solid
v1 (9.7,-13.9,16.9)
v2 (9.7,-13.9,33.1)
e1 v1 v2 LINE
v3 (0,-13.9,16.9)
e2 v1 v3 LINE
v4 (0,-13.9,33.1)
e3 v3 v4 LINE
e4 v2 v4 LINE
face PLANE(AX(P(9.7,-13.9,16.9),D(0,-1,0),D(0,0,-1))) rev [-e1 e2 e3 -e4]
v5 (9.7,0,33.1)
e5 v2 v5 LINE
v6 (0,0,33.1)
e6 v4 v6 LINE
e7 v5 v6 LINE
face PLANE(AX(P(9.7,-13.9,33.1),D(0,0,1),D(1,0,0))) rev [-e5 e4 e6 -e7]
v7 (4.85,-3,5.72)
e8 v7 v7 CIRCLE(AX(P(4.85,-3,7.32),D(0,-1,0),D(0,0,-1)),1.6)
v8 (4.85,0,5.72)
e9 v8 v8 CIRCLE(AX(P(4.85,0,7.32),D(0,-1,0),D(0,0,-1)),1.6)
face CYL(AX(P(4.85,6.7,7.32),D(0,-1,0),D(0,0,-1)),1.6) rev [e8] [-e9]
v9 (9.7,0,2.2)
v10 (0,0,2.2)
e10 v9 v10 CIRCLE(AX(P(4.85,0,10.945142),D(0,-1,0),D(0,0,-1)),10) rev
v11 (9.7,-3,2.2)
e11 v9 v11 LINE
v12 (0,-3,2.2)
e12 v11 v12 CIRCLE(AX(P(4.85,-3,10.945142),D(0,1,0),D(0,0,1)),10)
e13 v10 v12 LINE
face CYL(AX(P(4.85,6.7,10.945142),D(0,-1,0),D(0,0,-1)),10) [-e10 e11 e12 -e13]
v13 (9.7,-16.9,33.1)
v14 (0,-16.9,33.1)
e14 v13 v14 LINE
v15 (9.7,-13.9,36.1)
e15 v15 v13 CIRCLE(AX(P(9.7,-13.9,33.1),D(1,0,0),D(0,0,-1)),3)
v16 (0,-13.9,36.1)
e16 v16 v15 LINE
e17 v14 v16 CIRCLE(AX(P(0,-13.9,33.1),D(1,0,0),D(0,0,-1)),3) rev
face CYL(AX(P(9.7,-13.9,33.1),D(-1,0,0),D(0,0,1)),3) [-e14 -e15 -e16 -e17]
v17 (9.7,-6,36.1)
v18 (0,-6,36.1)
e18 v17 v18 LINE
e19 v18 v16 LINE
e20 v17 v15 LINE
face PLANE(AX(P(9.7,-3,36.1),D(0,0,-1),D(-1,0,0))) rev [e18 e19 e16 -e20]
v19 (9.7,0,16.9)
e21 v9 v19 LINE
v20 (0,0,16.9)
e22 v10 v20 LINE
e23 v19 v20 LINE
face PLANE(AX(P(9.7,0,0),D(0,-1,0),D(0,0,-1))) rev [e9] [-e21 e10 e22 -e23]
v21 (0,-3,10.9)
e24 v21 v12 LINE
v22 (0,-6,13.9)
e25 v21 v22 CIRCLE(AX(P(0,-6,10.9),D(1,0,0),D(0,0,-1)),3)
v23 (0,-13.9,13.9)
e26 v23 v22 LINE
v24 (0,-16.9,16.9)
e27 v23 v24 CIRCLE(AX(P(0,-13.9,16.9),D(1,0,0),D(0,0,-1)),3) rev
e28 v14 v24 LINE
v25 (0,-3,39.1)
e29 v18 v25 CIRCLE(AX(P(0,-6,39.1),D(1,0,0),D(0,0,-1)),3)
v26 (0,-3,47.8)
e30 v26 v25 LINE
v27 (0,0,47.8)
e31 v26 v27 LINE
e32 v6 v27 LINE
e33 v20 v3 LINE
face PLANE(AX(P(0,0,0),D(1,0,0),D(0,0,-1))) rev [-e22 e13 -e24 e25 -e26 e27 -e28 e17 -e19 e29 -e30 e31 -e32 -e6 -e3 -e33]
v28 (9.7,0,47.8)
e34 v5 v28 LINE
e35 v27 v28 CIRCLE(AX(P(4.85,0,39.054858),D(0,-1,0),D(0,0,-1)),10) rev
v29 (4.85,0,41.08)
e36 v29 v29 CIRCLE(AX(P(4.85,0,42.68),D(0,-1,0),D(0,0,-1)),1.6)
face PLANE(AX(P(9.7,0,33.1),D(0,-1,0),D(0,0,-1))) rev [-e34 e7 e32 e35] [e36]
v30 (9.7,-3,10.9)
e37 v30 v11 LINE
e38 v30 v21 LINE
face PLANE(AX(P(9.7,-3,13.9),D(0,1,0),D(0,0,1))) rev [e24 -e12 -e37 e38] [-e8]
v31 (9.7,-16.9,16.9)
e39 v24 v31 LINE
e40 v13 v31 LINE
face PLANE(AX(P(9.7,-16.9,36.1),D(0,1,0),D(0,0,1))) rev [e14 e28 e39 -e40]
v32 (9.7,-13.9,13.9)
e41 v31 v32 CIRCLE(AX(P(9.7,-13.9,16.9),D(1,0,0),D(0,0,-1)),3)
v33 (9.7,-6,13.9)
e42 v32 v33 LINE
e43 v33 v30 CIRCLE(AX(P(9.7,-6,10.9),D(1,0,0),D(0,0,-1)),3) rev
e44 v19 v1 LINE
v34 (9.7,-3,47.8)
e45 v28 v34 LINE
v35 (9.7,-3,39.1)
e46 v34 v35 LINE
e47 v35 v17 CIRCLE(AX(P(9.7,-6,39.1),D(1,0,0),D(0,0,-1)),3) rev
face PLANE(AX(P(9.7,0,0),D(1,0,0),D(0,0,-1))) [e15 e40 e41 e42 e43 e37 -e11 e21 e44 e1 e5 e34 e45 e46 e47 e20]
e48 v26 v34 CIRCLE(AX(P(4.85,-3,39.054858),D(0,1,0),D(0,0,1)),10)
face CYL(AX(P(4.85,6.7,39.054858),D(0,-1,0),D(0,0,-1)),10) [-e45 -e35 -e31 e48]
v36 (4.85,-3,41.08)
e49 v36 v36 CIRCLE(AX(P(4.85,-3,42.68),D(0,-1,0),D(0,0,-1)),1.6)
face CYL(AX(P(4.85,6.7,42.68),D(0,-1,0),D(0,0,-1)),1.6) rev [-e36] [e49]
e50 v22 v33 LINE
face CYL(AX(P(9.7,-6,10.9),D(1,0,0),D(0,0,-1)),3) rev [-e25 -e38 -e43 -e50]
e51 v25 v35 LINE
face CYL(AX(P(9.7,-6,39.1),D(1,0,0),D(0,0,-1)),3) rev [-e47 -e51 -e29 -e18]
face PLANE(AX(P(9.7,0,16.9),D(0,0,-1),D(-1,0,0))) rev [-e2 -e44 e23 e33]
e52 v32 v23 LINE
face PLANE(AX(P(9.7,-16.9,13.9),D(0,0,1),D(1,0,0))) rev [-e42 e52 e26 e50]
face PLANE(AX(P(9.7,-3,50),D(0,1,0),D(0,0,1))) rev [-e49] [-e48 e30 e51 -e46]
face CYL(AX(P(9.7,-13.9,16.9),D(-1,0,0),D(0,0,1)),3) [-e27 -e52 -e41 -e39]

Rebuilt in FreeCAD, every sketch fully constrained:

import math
import FreeCAD as App
import Part
import Sketcher
from FreeCAD import Vector
Q = App.Units.Quantity


def edges_at(feature, points):
    """Names of the edges that pass closest to the given points."""
    edges = feature.Shape.Edges
    near = lambda p: min(range(len(edges)), key=lambda i: edges[i].distToShape(Part.Vertex(*p))[0])
    return sorted({f"Edge{near(p) + 1}" for p in points})


def add_polygon(sketch, points):
    """Adds a closed chain of lines whose ends are joined by coincident constraints."""
    first, n = sketch.GeometryCount, len(points)
    for a, b in zip(points, points[1:] + points[:1]):
        sketch.addGeometry(Part.LineSegment(App.Vector(*a, 0), App.Vector(*b, 0)), False)
    for i in range(n):
        sketch.addConstraint(Sketcher.Constraint("Coincident", first + i, 2, first + (i + 1) % n, 1))

doc = App.newDocument("Part")
body = doc.addObject("PartDesign::Body", "Body")

# Sketch on YZ plane
sketch1 = doc.addObject("Sketcher::SketchObject", "Sketch")
body.addObject(sketch1)
sketch1.AttachmentSupport = (doc.YZ_Plane, [""])
sketch1.MapMode = "FlatFace"
add_polygon(sketch1, [(0, 0), (0, 16.9), (-13.9, 16.9), (-13.9, 33.1), (0, 33.1), (0, 50), (-3, 50), (-3, 36.1), (-16.9, 36.1), (-16.9, 13.9), (-3, 13.9), (-3, 0)])  # lines 0-11
sketch1.addConstraint([
    Sketcher.Constraint("Vertical", 0),
    Sketcher.Constraint("Horizontal", 1),
    Sketcher.Constraint("Vertical", 2),
    Sketcher.Constraint("Horizontal", 3),
    Sketcher.Constraint("Vertical", 4),
    Sketcher.Constraint("Horizontal", 5),
    Sketcher.Constraint("Vertical", 6),
    Sketcher.Constraint("Horizontal", 7),
    Sketcher.Constraint("Vertical", 8),
    Sketcher.Constraint("Horizontal", 9),
    Sketcher.Constraint("Vertical", 10),
    Sketcher.Constraint("Horizontal", 11),
    Sketcher.Constraint("Coincident", 11, 2, -1, 1),
    Sketcher.Constraint("PointOnObject", 3, 2, -2),
    Sketcher.Constraint("Vertical", 6, 2, 9, 2),
    Sketcher.Constraint("Equal", 3, 7),
    Sketcher.Constraint("Equal", 0, 4),
    Sketcher.Constraint("Equal", 9, 6),
    Sketcher.Constraint("Equal", 6, 10),
    Sketcher.Constraint("DistanceX", 5, 2, 5, 1, Q("3 mm")),
    Sketcher.Constraint("DistanceX", 1, 2, 1, 1, Q("13.9 mm")),
    Sketcher.Constraint("DistanceY", 0, 1, 0, 2, Q("16.9 mm")),
    Sketcher.Constraint("DistanceY", 2, 1, 2, 2, Q("16.2 mm")),
])
pad1 = doc.addObject("PartDesign::Pad", "Pad")
body.addObject(pad1)
pad1.Profile = sketch1
pad1.Length = 9.7
doc.recompute()

fillet = doc.addObject("PartDesign::Fillet", "Fillet")
body.addObject(fillet)
fillet.Base = (pad1, edges_at(pad1, [
    (4.85, -3, 13.9),
    (4.85, -16.9, 13.9),
    (4.85, -16.9, 36.1),
    (4.85, -3, 36.1),
]))
fillet.Radius = 3

# Sketch on XZ plane
sketch2 = doc.addObject("Sketcher::SketchObject", "Sketch001")
body.addObject(sketch2)
sketch2.AttachmentSupport = (doc.XZ_Plane, [""])
sketch2.MapMode = "FlatFace"
sketch2.AttachmentOffset = App.Placement(Vector(0, 0, 3), App.Rotation())
sketch2.addGeometry([
    Part.Circle(Vector(4.85, 42.68, 0), Vector(0, 0, 1), 1.6),
    Part.Circle(Vector(4.85, 7.32, 0), Vector(0, 0, 1), 1.6),
], False)
sketch2.addConstraint([
    Sketcher.Constraint("Equal", 0, 1),
    Sketcher.Constraint("Vertical", 0, 3, 1, 3),
    Sketcher.Constraint("Diameter", 0, Q("3.2 mm")),
    Sketcher.Constraint("DistanceX", -1, 1, 0, 3, Q("4.85 mm")),
    Sketcher.Constraint("DistanceY", -1, 1, 0, 3, Q("42.68 mm")),
    Sketcher.Constraint("DistanceY", -1, 1, 1, 3, Q("7.32 mm")),
])
pocket1 = doc.addObject("PartDesign::Pocket", "Pocket")
body.addObject(pocket1)
pocket1.Profile = sketch2
pocket1.Length = 9.7

# Sketch on XZ plane
sketch3 = doc.addObject("Sketcher::SketchObject", "Sketch002")
body.addObject(sketch3)
sketch3.AttachmentSupport = (doc.XZ_Plane, [""])
sketch3.MapMode = "FlatFace"
sketch3.AttachmentOffset = App.Placement(Vector(0, 0, 3), App.Rotation())
sketch3.addGeometry([
    Part.LineSegment(Vector(0, 0, 0), Vector(9.7, 0, 0)),  # 0
    Part.LineSegment(Vector(9.7, 0, 0), Vector(9.7, 2.2, 0)),  # 1
    Part.ArcOfCircle(Part.Circle(Vector(4.85, 10.945142, 0), Vector(0, 0, 1), 10), math.radians(-119.012472), math.radians(-60.987528)),  # 2
    Part.LineSegment(Vector(0, 2.2, 0), Vector(0, 0, 0)),  # 3
    Part.LineSegment(Vector(0, 50, 0), Vector(0, 47.8, 0)),  # 4
    Part.ArcOfCircle(Part.Circle(Vector(4.85, 39.054858, 0), Vector(0, 0, 1), 10), math.radians(60.987528), math.radians(119.012472)),  # 5
    Part.LineSegment(Vector(9.7, 47.8, 0), Vector(9.7, 50, 0)),  # 6
    Part.LineSegment(Vector(9.7, 50, 0), Vector(0, 50, 0)),  # 7
], False)
sketch3.addConstraint([
    Sketcher.Constraint("Coincident", 0, 2, 1, 1),
    Sketcher.Constraint("Coincident", 1, 2, 2, 2),
    Sketcher.Constraint("Coincident", 2, 1, 3, 1),
    Sketcher.Constraint("Coincident", 3, 2, 0, 1),
    Sketcher.Constraint("Coincident", 4, 2, 5, 2),
    Sketcher.Constraint("Coincident", 5, 1, 6, 1),
    Sketcher.Constraint("Coincident", 6, 2, 7, 1),
    Sketcher.Constraint("Coincident", 7, 2, 4, 1),
    Sketcher.Constraint("Horizontal", 0),
    Sketcher.Constraint("Vertical", 1),
    Sketcher.Constraint("Vertical", 3),
    Sketcher.Constraint("Vertical", 4),
    Sketcher.Constraint("Vertical", 6),
    Sketcher.Constraint("Horizontal", 7),
    Sketcher.Constraint("Coincident", 3, 2, -1, 1),
    Sketcher.Constraint("Equal", 2, 5),
    Sketcher.Constraint("PointOnObject", 4, 2, -2),
    Sketcher.Constraint("Horizontal", 1, 2, 2, 1),
    Sketcher.Constraint("Horizontal", 4, 2, 5, 1),
    Sketcher.Constraint("Vertical", 2, 3, 5, 3),
    Sketcher.Constraint("Equal", 3, 4),
    Sketcher.Constraint("Radius", 2, Q("10 mm")),
    Sketcher.Constraint("DistanceX", 0, 1, 0, 2, Q("9.7 mm")),
    Sketcher.Constraint("DistanceY", 1, 1, 1, 2, Q("2.2 mm")),
    Sketcher.Constraint("DistanceY", -1, 1, 6, 2, Q("50 mm")),
])
pocket2 = doc.addObject("PartDesign::Pocket", "Pocket001")
body.addObject(pocket2)
pocket2.Profile = sketch3
pocket2.Length = 9.7

doc.recompute()
